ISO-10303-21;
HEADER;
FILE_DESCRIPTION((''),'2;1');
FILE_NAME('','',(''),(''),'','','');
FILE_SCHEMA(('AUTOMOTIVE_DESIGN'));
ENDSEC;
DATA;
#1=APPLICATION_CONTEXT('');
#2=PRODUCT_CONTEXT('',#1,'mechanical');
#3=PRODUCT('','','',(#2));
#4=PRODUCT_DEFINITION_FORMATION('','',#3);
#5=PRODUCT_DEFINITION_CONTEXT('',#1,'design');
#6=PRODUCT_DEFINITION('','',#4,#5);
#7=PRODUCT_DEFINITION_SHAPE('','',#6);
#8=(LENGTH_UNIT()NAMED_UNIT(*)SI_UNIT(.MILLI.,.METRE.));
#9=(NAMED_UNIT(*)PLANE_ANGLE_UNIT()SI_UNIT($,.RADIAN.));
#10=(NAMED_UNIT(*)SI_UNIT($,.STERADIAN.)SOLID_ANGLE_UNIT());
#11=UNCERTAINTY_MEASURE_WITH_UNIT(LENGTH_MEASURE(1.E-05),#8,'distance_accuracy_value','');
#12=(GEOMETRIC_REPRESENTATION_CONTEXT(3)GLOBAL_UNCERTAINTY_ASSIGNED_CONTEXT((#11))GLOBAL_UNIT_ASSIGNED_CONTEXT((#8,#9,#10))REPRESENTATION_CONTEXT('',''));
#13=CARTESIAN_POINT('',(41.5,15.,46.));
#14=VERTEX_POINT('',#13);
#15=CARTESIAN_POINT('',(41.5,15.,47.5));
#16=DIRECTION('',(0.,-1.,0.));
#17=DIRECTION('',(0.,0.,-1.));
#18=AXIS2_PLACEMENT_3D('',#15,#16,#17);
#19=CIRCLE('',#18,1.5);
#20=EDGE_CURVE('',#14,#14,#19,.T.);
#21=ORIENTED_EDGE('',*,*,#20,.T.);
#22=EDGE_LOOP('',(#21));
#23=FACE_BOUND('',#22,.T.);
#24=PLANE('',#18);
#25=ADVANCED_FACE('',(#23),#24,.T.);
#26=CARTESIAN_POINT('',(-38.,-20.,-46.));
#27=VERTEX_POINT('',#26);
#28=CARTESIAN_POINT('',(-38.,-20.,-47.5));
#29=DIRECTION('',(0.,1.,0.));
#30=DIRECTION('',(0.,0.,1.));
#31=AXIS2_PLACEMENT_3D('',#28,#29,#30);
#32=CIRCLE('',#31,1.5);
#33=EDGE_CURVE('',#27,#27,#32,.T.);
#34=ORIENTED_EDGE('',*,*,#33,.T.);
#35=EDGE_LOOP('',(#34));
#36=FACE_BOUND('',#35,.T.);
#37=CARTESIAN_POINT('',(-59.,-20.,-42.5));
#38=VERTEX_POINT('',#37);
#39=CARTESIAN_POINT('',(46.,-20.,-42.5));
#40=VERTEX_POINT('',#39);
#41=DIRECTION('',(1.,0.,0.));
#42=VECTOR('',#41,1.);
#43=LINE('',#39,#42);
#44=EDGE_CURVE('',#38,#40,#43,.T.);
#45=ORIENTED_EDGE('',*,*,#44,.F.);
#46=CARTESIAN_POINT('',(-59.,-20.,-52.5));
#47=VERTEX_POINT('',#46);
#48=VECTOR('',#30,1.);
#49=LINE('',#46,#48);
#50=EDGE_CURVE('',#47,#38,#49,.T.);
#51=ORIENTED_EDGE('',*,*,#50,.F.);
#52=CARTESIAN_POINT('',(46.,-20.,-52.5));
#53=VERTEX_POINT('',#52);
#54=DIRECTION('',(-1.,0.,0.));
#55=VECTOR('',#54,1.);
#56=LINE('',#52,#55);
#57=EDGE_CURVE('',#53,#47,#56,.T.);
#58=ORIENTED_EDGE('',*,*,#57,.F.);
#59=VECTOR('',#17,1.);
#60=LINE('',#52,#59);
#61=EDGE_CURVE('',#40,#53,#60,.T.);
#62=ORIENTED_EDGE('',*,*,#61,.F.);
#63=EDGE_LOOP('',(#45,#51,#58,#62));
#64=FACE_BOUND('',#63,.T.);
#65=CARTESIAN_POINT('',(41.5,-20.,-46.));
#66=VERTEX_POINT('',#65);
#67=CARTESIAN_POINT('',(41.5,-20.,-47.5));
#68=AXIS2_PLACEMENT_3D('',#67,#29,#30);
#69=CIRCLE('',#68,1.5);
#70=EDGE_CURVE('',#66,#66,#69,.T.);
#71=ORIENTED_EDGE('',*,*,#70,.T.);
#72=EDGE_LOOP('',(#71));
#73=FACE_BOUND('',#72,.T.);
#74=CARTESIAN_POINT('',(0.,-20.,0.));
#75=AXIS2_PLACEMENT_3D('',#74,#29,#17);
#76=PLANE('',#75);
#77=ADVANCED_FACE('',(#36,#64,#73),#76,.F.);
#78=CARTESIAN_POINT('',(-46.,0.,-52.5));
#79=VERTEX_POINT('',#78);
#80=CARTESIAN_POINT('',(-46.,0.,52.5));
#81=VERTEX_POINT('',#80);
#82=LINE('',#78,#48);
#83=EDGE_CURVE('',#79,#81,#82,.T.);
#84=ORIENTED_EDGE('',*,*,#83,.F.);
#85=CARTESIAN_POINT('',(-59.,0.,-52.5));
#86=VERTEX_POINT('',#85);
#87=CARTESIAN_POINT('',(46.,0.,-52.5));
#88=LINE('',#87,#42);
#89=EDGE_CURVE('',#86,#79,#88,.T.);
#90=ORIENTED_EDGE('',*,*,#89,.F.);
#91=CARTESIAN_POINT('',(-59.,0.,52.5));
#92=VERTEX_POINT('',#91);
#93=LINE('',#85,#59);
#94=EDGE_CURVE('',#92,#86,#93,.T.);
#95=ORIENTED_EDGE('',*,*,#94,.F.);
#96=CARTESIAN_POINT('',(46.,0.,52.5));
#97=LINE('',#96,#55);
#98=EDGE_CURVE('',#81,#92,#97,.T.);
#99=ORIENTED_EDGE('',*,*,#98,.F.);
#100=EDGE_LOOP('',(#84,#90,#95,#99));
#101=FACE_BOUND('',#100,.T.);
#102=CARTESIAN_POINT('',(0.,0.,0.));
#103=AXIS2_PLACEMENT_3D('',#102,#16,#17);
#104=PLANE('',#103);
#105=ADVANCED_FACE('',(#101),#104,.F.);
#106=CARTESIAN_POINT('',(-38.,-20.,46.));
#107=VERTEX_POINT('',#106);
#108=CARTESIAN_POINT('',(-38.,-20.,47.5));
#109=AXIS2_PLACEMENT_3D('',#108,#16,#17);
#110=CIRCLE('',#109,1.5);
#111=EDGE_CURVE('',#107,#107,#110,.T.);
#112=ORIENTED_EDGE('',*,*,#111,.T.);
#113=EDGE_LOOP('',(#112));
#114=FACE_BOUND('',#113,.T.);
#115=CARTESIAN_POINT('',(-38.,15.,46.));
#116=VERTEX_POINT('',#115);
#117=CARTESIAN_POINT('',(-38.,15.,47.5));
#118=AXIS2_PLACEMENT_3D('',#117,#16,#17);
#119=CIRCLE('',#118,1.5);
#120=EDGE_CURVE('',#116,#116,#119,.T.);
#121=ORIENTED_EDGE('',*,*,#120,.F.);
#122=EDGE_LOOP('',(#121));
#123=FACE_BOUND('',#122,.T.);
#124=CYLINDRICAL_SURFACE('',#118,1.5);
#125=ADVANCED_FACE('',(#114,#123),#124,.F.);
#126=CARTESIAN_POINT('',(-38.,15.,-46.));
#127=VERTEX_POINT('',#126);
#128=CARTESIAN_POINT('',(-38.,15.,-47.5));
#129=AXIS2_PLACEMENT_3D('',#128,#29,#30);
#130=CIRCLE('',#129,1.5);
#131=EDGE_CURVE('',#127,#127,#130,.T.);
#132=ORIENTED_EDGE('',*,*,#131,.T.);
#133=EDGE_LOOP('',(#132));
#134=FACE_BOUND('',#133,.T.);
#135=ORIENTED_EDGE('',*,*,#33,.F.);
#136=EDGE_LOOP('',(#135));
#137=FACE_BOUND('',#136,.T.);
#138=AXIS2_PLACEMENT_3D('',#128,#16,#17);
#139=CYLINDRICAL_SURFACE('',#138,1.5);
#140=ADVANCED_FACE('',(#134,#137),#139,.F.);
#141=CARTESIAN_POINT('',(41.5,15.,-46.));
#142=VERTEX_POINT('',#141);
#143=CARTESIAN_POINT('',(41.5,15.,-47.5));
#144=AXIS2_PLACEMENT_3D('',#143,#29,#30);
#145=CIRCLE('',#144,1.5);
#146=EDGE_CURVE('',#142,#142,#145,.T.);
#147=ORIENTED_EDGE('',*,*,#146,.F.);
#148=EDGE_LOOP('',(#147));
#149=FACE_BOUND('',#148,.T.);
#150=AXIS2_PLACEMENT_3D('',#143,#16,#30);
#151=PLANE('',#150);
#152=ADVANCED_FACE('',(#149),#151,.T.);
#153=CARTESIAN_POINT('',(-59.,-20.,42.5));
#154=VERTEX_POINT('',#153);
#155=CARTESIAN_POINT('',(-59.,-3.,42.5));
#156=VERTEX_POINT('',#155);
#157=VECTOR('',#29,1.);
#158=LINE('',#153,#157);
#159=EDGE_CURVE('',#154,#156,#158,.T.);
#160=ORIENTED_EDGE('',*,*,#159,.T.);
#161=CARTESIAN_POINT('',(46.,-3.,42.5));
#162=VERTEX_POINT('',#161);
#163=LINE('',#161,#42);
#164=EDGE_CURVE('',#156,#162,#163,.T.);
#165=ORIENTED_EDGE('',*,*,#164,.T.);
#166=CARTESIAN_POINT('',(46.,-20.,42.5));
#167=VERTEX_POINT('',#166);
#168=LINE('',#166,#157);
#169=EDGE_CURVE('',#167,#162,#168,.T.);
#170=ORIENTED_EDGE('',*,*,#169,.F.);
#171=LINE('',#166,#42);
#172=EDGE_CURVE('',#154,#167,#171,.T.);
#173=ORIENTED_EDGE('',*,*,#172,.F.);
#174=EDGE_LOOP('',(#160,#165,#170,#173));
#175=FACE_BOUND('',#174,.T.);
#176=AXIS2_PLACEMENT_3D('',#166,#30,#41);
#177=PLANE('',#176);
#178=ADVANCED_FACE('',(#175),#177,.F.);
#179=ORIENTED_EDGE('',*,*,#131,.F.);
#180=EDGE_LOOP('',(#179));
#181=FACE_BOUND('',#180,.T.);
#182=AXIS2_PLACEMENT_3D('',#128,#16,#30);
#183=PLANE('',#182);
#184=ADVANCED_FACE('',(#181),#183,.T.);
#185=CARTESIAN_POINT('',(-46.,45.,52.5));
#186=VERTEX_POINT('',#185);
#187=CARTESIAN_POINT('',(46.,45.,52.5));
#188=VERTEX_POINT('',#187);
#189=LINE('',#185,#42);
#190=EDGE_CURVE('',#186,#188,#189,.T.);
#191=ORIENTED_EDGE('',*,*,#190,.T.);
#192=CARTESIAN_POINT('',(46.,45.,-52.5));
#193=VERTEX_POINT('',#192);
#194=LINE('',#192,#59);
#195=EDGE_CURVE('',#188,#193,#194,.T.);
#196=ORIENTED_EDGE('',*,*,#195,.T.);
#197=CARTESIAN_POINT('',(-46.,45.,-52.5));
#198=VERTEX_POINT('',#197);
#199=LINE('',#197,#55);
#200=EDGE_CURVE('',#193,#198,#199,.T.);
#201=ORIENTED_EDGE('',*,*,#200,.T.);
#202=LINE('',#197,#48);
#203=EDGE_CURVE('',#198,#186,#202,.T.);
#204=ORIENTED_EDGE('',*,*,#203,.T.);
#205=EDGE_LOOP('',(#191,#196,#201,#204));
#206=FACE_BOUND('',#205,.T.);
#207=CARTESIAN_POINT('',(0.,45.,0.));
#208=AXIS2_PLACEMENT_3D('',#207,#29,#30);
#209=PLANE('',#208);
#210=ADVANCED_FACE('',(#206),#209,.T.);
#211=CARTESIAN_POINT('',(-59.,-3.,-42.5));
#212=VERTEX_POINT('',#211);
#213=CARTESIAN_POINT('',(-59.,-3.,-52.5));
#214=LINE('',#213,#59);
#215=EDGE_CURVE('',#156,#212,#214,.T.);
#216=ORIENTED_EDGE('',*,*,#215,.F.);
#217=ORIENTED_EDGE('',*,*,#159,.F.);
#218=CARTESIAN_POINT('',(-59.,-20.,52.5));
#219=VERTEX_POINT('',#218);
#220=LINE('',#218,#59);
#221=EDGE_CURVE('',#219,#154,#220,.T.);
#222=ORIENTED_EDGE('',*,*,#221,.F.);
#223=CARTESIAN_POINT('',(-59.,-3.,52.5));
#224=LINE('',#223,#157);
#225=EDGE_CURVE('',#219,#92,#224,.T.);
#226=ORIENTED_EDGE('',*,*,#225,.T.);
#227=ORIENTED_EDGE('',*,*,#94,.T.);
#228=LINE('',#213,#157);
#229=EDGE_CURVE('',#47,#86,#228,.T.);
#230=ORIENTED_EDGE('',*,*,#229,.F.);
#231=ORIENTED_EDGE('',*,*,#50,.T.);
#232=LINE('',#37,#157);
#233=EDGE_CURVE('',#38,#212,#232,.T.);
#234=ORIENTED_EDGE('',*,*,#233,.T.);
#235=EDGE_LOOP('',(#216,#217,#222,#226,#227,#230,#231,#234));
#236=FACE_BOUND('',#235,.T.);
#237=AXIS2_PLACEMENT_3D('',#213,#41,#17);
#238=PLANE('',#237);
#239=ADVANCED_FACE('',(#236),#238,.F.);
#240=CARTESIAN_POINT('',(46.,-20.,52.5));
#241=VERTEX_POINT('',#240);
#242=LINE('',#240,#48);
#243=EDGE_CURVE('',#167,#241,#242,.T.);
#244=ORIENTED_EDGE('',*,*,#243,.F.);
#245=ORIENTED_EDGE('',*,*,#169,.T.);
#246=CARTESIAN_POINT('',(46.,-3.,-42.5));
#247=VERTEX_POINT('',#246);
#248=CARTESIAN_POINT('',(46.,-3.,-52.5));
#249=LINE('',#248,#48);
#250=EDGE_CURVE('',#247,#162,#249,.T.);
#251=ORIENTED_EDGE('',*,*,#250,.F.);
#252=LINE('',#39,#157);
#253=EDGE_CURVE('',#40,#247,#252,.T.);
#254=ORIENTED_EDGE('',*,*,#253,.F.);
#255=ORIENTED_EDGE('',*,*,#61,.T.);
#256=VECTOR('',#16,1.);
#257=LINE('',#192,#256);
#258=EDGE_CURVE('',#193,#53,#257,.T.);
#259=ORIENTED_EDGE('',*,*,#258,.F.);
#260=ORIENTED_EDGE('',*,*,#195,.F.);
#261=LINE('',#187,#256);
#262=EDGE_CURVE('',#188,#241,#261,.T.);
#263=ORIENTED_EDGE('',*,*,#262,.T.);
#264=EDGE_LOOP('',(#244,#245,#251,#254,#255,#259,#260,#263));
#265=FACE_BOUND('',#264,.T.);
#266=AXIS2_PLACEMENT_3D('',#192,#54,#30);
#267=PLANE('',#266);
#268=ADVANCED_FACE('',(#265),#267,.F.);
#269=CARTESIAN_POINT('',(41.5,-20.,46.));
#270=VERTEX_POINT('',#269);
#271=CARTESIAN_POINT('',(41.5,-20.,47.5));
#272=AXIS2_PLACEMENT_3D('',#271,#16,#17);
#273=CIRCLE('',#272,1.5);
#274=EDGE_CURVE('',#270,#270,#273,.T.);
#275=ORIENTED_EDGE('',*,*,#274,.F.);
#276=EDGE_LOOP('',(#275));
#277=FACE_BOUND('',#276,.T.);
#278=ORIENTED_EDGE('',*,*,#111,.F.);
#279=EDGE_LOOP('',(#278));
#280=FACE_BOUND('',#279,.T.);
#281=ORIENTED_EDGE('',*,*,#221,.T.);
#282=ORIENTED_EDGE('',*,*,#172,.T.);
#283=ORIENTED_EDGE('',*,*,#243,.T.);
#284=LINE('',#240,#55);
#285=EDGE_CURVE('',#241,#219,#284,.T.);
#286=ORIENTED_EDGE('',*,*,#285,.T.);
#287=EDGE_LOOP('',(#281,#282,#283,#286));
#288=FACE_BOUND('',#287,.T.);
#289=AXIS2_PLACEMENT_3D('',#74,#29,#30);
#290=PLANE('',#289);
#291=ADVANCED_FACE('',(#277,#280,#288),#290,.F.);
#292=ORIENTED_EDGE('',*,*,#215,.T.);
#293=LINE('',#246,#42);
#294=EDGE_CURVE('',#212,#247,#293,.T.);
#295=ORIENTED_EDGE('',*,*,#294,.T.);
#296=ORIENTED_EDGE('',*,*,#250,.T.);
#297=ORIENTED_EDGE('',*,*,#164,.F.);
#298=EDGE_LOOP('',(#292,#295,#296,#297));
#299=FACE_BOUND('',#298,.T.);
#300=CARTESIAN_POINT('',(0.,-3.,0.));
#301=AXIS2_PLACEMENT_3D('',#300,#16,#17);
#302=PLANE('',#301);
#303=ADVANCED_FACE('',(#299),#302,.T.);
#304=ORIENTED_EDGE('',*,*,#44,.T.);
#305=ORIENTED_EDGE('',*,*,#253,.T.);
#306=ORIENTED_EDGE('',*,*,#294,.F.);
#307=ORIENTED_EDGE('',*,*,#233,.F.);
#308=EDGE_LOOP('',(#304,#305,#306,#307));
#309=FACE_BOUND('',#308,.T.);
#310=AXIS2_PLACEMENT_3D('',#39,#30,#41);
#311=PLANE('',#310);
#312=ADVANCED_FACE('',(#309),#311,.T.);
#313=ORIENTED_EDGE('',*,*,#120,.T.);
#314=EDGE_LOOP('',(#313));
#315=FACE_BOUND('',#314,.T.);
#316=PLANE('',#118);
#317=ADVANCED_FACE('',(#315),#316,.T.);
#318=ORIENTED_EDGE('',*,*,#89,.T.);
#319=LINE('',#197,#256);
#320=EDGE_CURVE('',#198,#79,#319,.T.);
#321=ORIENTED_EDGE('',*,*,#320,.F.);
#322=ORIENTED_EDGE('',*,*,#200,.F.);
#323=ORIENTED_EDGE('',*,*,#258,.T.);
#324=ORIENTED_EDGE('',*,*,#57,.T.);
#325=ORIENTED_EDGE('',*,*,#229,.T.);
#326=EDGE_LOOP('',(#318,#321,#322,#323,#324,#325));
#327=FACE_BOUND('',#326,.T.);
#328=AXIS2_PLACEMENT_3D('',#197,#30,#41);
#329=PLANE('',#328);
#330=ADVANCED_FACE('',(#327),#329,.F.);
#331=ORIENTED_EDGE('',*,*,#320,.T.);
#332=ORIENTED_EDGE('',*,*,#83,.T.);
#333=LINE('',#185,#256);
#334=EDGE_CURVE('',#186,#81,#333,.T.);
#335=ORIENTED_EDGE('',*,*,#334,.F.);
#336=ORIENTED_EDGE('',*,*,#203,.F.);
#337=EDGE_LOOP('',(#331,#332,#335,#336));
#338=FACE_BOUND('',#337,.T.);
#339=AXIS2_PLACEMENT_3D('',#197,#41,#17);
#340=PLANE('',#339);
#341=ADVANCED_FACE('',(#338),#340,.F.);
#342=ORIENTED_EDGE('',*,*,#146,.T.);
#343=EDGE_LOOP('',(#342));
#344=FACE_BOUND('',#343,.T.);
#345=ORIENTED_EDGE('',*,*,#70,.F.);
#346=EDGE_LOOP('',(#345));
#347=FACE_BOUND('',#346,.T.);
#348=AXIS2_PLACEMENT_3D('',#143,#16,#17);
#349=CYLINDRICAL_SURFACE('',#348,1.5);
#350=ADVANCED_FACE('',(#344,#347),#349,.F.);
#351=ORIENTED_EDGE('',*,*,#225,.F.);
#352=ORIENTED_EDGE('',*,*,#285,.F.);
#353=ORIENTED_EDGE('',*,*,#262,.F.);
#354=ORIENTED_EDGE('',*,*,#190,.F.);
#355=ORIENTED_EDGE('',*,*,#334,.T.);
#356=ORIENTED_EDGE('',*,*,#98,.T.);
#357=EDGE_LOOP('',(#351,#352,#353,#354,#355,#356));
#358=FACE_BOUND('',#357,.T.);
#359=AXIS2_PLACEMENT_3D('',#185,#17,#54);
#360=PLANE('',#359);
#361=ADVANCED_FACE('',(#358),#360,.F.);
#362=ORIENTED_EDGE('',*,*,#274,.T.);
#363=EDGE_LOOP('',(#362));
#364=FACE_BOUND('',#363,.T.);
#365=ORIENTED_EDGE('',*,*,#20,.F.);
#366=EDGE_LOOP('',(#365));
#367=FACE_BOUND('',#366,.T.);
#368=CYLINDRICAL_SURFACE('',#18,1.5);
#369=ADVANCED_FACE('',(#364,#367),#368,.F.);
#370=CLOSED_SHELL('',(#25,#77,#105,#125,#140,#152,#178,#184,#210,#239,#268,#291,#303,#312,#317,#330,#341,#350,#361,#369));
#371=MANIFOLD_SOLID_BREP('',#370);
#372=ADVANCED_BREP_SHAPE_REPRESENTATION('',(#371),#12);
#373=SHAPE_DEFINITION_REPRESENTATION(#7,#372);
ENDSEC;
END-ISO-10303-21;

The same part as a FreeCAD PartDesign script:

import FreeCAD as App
import Part
import Sketcher
from FreeCAD import Vector


def add_polygon(sketch, points):
    """Adds a closed chain of lines whose ends are joined by coincident constraints."""
    first, n = sketch.GeometryCount, len(points)
    for a, b in zip(points, points[1:] + points[:1]):
        sketch.addGeometry(Part.LineSegment(App.Vector(*a, 0), App.Vector(*b, 0)), False)
    for i in range(n):
        sketch.addConstraint(Sketcher.Constraint("Coincident", first + i, 2, first + (i + 1) % n, 1))

doc = App.newDocument("Part")
body = doc.addObject("PartDesign::Body", "Body")

# Sketch on XZ plane
sketch1 = body.newObject("Sketcher::SketchObject", "Sketch")
sketch1.AttachmentSupport = (doc.getObject("XZ_Plane"), [""])
sketch1.MapMode = "FlatFace"
add_polygon(sketch1, [(-46, -52), (-46, 52), (46, 52), (46, -52)])  # lines 0-3
sketch1.addConstraint([
    Sketcher.Constraint("Vertical", 0),
    Sketcher.Constraint("Horizontal", 1),
    Sketcher.Constraint("Vertical", 2),
    Sketcher.Constraint("Horizontal", 3),
    Sketcher.Constraint("Symmetric", 0, 2, 2, 2, -1, 1),
    Sketcher.Constraint("DistanceX", 1, 1, 1, 2, 92.0),
    Sketcher.Constraint("DistanceY", 0, 1, 0, 2, 105.0),
])
pad1 = body.newObject("PartDesign::Pad", "Pad")
pad1.Profile = sketch1
pad1.Length = 45
pad1.Reversed = True

# Sketch on XZ plane
sketch2 = body.newObject("Sketcher::SketchObject", "Sketch001")
sketch2.AttachmentSupport = (doc.getObject("XZ_Plane"), [""])
sketch2.MapMode = "FlatFace"
add_polygon(sketch2, [(-59, 52), (-59, -52), (46, -52), (46, 52)])  # lines 0-3
sketch2.addConstraint([
    Sketcher.Constraint("Vertical", 0),
    Sketcher.Constraint("Horizontal", 1),
    Sketcher.Constraint("Vertical", 2),
    Sketcher.Constraint("Horizontal", 3),
    Sketcher.Constraint("Equal", 3, 0),
    Sketcher.Constraint("DistanceX", 1, 1, 1, 2, 105.0),
    Sketcher.Constraint("DistanceX", 0, 2, -1, 1, 59.0),
    Sketcher.Constraint("DistanceY", 0, 2, -1, 1, 52.5),
])
pad2 = body.newObject("PartDesign::Pad", "Pad001")
pad2.Profile = sketch2
pad2.Length = 3

# Sketch on XZ plane
sketch3 = body.newObject("Sketcher::SketchObject", "Sketch002")
sketch3.AttachmentSupport = (doc.getObject("XZ_Plane"), [""])
sketch3.MapMode = "FlatFace"
sketch3.AttachmentOffset = App.Placement(Vector(0, 0, 3), App.Rotation())
add_polygon(sketch3, [(-59, 52), (-59, 42), (46, 42), (46, 52)])  # lines 0-3
sketch3.addConstraint([
    Sketcher.Constraint("Vertical", 0),
    Sketcher.Constraint("Horizontal", 1),
    Sketcher.Constraint("Vertical", 2),
    Sketcher.Constraint("Horizontal", 3),
    Sketcher.Constraint("DistanceX", 1, 1, 1, 2, 105.0),
    Sketcher.Constraint("DistanceY", 0, 2, 0, 1, 10.0),
    Sketcher.Constraint("DistanceX", 0, 2, -1, 1, 59.0),
    Sketcher.Constraint("DistanceY", -1, 1, 0, 2, 42.5),
])
pad3 = body.newObject("PartDesign::Pad", "Pad002")
pad3.Profile = sketch3
pad3.Length = 17

# Sketch on XZ plane
sketch4 = body.newObject("Sketcher::SketchObject", "Sketch003")
sketch4.AttachmentSupport = (doc.getObject("XZ_Plane"), [""])
sketch4.MapMode = "FlatFace"
sketch4.AttachmentOffset = App.Placement(Vector(0, 0, 20), App.Rotation())
sketch4.addGeometry([
    Part.Circle(Vector(41.5, 47.5, 0), Vector(0, 0, 1), 1.5),
    Part.Circle(Vector(-38, 47.5, 0), Vector(0, 0, 1), 1.5),
], False)
sketch4.addConstraint([
    Sketcher.Constraint("Equal", 0, 1),
    Sketcher.Constraint("Horizontal", 0, 3, 1, 3),
    Sketcher.Constraint("Diameter", 0, 3.0),
    Sketcher.Constraint("DistanceX", 1, 3, -1, 1, 38.0),
    Sketcher.Constraint("DistanceX", -1, 1, 0, 3, 41.5),
    Sketcher.Constraint("DistanceY", -1, 1, 0, 3, 47.5),
])
pocket1 = body.newObject("PartDesign::Pocket", "Pocket")
pocket1.Profile = sketch4
pocket1.Length = 35
doc.recompute()

mirrored = body.newObject("PartDesign::Mirrored", "Mirrored")
mirrored.Originals = [pad3, pocket1]
mirrored.MirrorPlane = (doc.getObject("XY_Plane"), [""])
body.Tip = mirrored

doc.recompute()
